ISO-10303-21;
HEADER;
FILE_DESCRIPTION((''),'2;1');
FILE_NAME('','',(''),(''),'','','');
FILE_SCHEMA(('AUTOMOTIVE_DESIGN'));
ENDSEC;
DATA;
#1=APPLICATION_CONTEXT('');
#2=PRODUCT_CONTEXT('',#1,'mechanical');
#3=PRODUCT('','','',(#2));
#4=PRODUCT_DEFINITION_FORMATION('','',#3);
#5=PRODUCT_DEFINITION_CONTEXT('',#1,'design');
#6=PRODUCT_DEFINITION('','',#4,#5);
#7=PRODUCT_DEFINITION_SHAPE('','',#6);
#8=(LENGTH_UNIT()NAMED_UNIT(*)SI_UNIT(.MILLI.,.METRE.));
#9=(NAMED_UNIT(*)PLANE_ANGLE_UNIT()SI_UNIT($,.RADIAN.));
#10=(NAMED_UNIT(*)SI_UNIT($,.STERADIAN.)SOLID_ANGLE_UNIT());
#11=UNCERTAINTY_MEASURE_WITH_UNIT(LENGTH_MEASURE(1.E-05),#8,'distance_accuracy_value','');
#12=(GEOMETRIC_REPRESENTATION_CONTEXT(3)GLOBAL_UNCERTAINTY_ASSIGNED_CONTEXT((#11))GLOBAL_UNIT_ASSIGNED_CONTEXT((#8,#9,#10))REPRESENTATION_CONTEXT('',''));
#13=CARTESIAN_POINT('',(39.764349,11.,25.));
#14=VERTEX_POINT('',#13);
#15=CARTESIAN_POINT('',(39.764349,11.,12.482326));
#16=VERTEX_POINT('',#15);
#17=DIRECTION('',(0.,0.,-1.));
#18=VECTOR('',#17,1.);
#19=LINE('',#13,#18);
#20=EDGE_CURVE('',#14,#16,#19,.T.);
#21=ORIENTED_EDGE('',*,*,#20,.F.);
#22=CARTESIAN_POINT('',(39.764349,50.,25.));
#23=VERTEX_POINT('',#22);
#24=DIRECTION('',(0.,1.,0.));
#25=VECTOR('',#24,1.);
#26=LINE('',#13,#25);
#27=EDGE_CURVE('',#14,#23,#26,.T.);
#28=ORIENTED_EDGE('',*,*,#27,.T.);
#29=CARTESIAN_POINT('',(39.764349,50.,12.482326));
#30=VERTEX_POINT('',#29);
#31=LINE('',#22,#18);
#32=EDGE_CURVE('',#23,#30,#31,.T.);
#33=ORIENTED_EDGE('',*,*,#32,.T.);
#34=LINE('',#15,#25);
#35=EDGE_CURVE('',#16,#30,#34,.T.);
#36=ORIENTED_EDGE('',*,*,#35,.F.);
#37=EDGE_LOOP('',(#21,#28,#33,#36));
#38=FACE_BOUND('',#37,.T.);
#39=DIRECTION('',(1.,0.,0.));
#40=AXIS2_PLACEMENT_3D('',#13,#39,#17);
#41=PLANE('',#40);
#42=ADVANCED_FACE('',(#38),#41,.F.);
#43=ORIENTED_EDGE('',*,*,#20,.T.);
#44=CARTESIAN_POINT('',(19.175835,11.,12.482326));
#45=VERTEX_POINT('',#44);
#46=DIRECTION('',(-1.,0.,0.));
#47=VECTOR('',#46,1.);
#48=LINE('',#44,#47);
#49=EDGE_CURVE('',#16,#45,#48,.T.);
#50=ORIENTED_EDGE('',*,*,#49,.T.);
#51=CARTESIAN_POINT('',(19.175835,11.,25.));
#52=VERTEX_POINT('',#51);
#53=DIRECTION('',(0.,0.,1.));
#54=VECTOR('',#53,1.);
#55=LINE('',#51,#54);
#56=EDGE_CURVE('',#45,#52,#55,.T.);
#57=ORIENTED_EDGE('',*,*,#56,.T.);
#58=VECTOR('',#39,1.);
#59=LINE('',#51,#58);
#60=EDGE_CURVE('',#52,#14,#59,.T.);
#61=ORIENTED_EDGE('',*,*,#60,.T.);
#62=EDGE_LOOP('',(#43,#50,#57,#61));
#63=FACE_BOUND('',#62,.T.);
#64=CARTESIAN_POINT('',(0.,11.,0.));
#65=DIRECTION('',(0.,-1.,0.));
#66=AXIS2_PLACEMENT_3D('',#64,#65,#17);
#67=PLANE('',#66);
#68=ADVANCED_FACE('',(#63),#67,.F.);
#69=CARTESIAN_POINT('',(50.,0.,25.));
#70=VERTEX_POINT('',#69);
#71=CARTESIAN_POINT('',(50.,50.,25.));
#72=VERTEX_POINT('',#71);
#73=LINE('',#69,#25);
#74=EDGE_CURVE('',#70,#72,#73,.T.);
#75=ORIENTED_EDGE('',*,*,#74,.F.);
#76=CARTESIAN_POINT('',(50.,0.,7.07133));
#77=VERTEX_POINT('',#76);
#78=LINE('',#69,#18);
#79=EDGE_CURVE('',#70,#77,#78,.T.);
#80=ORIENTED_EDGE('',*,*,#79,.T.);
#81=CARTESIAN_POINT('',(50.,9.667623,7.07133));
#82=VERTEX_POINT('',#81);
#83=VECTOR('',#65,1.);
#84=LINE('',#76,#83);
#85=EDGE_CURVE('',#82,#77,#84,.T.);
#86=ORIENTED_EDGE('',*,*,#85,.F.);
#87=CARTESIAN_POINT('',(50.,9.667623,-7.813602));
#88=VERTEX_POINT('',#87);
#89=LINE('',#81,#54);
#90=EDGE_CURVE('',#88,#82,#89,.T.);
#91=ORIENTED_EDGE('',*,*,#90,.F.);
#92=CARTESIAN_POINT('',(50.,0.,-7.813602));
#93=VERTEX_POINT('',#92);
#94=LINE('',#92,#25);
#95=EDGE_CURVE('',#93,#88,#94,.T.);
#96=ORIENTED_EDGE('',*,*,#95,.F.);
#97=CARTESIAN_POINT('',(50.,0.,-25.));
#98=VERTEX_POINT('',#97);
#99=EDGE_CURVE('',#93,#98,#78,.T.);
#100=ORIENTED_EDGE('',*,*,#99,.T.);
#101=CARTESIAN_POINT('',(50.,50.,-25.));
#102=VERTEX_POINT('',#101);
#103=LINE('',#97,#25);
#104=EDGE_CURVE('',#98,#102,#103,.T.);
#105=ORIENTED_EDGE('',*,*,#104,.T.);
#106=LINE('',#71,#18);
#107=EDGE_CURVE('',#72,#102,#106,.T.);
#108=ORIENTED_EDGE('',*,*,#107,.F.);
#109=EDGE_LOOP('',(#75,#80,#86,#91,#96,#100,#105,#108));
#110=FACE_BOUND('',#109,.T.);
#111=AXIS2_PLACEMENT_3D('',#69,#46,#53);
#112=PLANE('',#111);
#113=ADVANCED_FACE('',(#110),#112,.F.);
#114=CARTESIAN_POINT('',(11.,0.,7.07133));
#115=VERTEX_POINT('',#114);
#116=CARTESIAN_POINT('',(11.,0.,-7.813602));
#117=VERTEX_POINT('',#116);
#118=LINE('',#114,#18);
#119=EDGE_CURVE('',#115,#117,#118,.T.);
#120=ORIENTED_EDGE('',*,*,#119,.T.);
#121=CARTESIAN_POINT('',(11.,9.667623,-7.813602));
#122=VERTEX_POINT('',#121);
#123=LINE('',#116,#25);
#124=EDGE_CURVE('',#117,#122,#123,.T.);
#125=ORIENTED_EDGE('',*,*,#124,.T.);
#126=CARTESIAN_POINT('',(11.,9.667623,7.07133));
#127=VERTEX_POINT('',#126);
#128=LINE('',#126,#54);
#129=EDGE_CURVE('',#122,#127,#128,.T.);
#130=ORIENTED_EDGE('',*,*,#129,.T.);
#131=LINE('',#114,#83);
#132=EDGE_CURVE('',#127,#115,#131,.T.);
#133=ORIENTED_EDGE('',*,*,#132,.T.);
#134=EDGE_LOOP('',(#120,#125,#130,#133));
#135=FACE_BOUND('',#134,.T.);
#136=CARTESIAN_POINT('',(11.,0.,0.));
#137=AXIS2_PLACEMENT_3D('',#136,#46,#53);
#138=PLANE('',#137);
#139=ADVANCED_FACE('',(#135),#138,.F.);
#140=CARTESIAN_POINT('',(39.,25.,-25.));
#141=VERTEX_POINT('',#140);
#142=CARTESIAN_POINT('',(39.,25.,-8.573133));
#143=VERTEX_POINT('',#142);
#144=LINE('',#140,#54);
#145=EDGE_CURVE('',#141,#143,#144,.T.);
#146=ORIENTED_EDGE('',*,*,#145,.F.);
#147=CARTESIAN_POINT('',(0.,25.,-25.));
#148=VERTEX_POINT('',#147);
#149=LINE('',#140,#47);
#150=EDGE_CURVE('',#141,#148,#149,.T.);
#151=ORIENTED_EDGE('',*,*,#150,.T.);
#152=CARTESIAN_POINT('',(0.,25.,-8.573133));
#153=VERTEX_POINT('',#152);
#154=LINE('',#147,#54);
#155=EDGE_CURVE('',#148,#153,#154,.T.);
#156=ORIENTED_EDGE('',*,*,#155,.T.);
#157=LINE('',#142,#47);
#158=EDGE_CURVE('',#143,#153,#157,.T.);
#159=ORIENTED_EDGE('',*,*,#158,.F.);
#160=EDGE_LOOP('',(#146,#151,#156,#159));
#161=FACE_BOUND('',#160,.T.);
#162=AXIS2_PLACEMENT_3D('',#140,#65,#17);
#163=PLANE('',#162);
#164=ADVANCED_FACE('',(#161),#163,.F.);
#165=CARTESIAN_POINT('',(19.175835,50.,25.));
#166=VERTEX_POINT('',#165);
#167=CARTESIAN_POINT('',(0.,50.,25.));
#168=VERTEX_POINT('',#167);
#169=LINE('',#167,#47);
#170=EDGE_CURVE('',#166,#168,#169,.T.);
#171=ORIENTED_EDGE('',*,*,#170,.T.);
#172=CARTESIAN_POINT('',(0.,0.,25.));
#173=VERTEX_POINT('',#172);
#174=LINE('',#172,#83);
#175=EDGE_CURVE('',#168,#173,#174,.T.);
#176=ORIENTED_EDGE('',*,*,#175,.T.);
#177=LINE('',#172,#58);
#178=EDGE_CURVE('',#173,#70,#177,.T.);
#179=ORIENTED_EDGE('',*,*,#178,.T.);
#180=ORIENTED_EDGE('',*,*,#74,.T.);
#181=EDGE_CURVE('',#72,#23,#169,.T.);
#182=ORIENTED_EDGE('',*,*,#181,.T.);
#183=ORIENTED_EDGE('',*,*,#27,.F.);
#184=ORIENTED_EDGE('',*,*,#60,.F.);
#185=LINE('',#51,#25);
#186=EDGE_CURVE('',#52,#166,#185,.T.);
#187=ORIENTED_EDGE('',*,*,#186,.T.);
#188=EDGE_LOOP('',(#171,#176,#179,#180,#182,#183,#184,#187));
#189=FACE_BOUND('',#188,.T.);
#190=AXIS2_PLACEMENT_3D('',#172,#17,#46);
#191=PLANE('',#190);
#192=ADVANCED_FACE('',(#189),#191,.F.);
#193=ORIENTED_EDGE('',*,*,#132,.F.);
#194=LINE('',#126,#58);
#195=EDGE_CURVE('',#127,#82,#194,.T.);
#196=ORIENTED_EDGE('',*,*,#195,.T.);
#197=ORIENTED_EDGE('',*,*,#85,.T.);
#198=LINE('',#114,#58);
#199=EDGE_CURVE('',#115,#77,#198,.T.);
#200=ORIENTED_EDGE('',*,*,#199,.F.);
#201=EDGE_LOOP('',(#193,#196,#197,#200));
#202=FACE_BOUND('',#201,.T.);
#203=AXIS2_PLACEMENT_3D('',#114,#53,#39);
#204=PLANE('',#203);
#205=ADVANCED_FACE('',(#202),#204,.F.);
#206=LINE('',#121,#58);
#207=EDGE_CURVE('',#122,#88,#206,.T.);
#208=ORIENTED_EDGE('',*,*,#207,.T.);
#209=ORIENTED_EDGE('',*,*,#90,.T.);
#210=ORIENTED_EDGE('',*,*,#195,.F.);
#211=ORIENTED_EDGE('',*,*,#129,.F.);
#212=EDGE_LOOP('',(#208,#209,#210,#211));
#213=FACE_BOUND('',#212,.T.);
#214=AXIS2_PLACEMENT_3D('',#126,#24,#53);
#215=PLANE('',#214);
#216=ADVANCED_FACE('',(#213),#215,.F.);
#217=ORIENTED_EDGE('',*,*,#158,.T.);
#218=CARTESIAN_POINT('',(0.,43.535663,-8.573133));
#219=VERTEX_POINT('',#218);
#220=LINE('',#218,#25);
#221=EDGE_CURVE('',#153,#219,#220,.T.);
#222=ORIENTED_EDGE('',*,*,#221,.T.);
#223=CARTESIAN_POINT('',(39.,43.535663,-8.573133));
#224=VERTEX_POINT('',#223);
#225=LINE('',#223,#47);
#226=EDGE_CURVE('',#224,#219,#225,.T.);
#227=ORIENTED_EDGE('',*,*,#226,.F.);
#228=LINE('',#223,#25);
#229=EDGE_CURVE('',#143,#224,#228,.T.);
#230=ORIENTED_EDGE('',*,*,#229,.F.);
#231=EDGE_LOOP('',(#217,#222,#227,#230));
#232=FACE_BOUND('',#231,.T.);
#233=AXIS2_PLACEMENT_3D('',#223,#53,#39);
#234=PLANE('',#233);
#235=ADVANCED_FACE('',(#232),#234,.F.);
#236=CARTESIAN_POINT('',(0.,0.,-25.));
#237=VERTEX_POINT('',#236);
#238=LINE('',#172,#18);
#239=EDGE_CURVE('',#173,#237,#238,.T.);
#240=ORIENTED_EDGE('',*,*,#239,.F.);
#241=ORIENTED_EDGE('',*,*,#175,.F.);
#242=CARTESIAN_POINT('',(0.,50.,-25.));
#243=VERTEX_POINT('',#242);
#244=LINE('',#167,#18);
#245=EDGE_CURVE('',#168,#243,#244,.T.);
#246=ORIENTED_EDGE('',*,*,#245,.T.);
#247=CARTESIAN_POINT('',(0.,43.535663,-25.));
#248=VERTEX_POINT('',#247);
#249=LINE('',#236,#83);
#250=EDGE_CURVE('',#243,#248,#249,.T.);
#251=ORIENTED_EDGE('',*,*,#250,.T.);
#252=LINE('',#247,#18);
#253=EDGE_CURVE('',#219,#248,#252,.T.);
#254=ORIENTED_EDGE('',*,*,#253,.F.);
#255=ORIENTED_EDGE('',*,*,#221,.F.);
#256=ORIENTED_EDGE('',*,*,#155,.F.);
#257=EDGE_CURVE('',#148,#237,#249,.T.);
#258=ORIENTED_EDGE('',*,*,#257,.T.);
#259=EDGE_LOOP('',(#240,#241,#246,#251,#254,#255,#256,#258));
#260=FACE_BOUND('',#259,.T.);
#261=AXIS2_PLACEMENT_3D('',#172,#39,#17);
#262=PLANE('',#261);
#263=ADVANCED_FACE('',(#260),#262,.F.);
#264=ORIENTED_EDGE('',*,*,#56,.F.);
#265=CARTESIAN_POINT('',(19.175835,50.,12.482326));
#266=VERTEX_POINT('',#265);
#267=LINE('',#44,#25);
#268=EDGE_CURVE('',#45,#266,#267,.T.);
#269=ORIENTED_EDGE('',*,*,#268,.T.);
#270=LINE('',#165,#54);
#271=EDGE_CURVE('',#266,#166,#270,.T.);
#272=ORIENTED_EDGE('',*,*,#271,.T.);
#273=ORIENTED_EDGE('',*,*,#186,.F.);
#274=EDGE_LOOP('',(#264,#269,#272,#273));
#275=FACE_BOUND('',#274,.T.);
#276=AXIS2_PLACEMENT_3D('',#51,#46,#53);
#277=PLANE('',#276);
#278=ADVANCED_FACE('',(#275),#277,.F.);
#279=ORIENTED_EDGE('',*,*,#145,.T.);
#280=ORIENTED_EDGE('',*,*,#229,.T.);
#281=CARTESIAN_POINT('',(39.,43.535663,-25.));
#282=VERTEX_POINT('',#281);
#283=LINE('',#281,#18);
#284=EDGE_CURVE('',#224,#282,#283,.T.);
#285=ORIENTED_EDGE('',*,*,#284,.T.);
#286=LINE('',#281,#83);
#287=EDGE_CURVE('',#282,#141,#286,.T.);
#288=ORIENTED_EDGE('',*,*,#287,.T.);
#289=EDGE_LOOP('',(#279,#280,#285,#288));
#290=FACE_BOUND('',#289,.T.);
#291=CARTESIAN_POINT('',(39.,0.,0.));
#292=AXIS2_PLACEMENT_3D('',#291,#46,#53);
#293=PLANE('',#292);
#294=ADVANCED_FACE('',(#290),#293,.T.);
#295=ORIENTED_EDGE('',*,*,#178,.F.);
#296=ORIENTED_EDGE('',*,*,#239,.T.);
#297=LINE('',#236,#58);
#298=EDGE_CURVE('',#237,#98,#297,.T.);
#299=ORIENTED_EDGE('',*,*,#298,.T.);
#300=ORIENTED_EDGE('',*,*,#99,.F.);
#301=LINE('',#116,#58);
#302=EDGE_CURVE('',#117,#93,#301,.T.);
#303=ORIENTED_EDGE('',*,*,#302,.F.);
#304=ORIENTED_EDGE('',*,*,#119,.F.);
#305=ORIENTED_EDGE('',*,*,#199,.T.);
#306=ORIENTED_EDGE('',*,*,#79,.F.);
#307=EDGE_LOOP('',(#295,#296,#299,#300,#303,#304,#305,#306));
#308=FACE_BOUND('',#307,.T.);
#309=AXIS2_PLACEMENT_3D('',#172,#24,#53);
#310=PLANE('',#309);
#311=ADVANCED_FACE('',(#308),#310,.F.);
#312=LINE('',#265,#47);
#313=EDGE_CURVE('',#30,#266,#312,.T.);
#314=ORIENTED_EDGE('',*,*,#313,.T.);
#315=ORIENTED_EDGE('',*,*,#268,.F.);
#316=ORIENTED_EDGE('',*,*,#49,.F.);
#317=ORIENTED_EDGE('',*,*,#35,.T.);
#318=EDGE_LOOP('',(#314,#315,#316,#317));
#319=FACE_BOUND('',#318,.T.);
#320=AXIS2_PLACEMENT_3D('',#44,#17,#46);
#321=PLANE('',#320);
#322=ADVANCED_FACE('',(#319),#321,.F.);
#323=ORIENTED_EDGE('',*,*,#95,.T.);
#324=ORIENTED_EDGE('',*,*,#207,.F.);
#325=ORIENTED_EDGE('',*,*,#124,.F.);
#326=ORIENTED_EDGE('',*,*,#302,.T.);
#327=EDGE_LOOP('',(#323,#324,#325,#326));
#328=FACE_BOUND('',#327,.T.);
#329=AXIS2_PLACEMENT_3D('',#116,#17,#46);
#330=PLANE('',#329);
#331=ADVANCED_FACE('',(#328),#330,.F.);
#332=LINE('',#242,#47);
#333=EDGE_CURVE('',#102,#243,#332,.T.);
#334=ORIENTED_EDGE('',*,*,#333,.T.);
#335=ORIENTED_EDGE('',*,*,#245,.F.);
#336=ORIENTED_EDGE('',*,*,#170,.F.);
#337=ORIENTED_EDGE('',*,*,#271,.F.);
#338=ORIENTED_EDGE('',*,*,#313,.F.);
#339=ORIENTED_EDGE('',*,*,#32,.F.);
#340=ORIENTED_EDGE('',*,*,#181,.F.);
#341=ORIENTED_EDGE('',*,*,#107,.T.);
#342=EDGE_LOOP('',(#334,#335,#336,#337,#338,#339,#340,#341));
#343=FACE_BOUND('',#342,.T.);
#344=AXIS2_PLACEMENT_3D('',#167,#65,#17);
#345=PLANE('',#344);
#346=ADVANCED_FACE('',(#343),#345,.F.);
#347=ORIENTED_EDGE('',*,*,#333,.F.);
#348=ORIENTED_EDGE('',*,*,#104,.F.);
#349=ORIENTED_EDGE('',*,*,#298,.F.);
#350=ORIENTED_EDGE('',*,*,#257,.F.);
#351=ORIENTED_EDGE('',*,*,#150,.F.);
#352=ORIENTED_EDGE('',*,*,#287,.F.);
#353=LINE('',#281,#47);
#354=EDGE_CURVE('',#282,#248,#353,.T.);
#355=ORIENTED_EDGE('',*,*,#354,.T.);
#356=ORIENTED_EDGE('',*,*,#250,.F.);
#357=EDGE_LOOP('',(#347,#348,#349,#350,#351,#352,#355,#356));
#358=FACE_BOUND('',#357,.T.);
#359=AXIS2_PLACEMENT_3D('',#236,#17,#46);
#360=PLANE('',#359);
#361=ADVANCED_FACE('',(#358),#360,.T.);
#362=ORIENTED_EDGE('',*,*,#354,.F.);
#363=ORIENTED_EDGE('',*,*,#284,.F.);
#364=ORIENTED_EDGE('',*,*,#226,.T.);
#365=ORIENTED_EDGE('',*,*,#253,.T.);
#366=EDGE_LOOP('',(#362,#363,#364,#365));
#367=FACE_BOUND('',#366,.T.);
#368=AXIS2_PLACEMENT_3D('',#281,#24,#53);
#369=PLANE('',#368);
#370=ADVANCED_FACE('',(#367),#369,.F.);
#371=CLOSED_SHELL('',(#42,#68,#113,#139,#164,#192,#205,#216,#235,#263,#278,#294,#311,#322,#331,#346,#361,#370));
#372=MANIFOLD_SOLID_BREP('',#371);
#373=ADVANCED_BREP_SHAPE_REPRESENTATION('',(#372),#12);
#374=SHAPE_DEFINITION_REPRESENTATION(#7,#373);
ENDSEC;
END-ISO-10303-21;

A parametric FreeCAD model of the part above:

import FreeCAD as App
import Part
import Sketcher

V = App.Vector

doc = App.newDocument("Part")
body = doc.addObject("PartDesign::Body", "Body")

# Sketch on XY plane
sketch1 = doc.addObject("Sketcher::SketchObject", "Sketch")
body.addObject(sketch1)
sketch1.AttachmentSupport = (doc.XY_Plane, [""])
sketch1.MapMode = "FlatFace"
sketch1.addGeometry([
    Part.LineSegment(V(0, 50, 0), V(0, 0, 0)),
    Part.LineSegment(V(0, 0, 0), V(50, 0, 0)),
    Part.LineSegment(V(50, 0, 0), V(50, 50, 0)),
    Part.LineSegment(V(50, 50, 0), V(0, 50, 0)),
], False)
sketch1.addConstraint([
    Sketcher.Constraint("Coincident", 0, 2, 1, 1),
    Sketcher.Constraint("Coincident", 1, 2, 2, 1),
    Sketcher.Constraint("Coincident", 2, 2, 3, 1),
    Sketcher.Constraint("Coincident", 3, 2, 0, 1),
    Sketcher.Constraint("Vertical", 0),
    Sketcher.Constraint("Horizontal", 1),
    Sketcher.Constraint("Vertical", 2),
    Sketcher.Constraint("Horizontal", 3),
    Sketcher.Constraint("Coincident", 0, 2, -1, 1),
    Sketcher.Constraint("Equal", 3, 0),
    Sketcher.Constraint("DistanceX", 1, 1, 1, 2, 50.0),
])
pad1 = doc.addObject("PartDesign::Pad", "Pad")
body.addObject(pad1)
pad1.Profile = sketch1
pad1.Length = 50
pad1.Midplane = True

# Sketch on XZ plane
sketch2 = doc.addObject("Sketcher::SketchObject", "Sketch001")
body.addObject(sketch2)
sketch2.AttachmentSupport = (doc.XZ_Plane, [""])
sketch2.MapMode = "FlatFace"
sketch2.AttachmentOffset = App.Placement(V(0, 0, -50), App.Rotation())
sketch2.addGeometry([
    Part.LineSegment(V(19, 12, 0), V(19, 25, 0)),
    Part.LineSegment(V(19, 25, 0), V(40, 25, 0)),
    Part.LineSegment(V(40, 25, 0), V(40, 12, 0)),
    Part.LineSegment(V(40, 12, 0), V(19, 12, 0)),
], False)
sketch2.addConstraint([
    Sketcher.Constraint("Coincident", 0, 2, 1, 1),
    Sketcher.Constraint("Coincident", 1, 2, 2, 1),
    Sketcher.Constraint("Coincident", 2, 2, 3, 1),
    Sketcher.Constraint("Coincident", 3, 2, 0, 1),
    Sketcher.Constraint("Vertical", 0),
    Sketcher.Constraint("Horizontal", 1),
    Sketcher.Constraint("Vertical", 2),
    Sketcher.Constraint("Horizontal", 3),
    Sketcher.Constraint("DistanceY", -1, 1, 0, 2, 25.0),
    Sketcher.Constraint("DistanceX", 1, 1, 1, 2, 20.588514),
    Sketcher.Constraint("DistanceY", 0, 1, 0, 2, 12.517674),
    Sketcher.Constraint("DistanceX", -1, 1, 1, 2, 39.764349),
])
pocket1 = doc.addObject("PartDesign::Pocket", "Pocket")
body.addObject(pocket1)
pocket1.Profile = sketch2
pocket1.Length = 39
pocket1.Reversed = True

# Sketch on YZ plane
sketch3 = doc.addObject("Sketcher::SketchObject", "Sketch002")
body.addObject(sketch3)
sketch3.AttachmentSupport = (doc.YZ_Plane, [""])
sketch3.MapMode = "FlatFace"
sketch3.AttachmentOffset = App.Placement(V(0, 0, 50), App.Rotation())
sketch3.addGeometry([
    Part.LineSegment(V(10, 7, 0), V(0, 7, 0)),
    Part.LineSegment(V(0, 7, 0), V(0, -8, 0)),
    Part.LineSegment(V(0, -8, 0), V(10, -8, 0)),
    Part.LineSegment(V(10, -8, 0), V(10, 7, 0)),
], False)
sketch3.addConstraint([
    Sketcher.Constraint("Coincident", 0, 2, 1, 1),
    Sketcher.Constraint("Coincident", 1, 2, 2, 1),
    Sketcher.Constraint("Coincident", 2, 2, 3, 1),
    Sketcher.Constraint("Coincident", 3, 2, 0, 1),
    Sketcher.Constraint("Horizontal", 0),
    Sketcher.Constraint("Vertical", 1),
    Sketcher.Constraint("Horizontal", 2),
    Sketcher.Constraint("Vertical", 3),
    Sketcher.Constraint("PointOnObject", 0, 2, -2),
    Sketcher.Constraint("DistanceX", 0, 2, 0, 1, 9.667623),
    Sketcher.Constraint("DistanceY", 1, 2, 1, 1, 14.884933),
    Sketcher.Constraint("DistanceY", -1, 1, 0, 2, 7.07133),
])
pocket2 = doc.addObject("PartDesign::Pocket", "Pocket001")
body.addObject(pocket2)
pocket2.Profile = sketch3
pocket2.Length = 39

# Sketch on YZ plane
sketch4 = doc.addObject("Sketcher::SketchObject", "Sketch003")
body.addObject(sketch4)
sketch4.AttachmentSupport = (doc.YZ_Plane, [""])
sketch4.MapMode = "FlatFace"
sketch4.addGeometry([
    Part.LineSegment(V(44, -25, 0), V(25, -25, 0)),
    Part.LineSegment(V(25, -25, 0), V(25, -9, 0)),
    Part.LineSegment(V(25, -9, 0), V(44, -9, 0)),
    Part.LineSegment(V(44, -9, 0), V(44, -25, 0)),
], False)
sketch4.addConstraint([
    Sketcher.Constraint("Coincident", 0, 2, 1, 1),
    Sketcher.Constraint("Coincident", 1, 2, 2, 1),
    Sketcher.Constraint("Coincident", 2, 2, 3, 1),
    Sketcher.Constraint("Coincident", 3, 2, 0, 1),
    Sketcher.Constraint("Horizontal", 0),
    Sketcher.Constraint("Vertical", 1),
    Sketcher.Constraint("Horizontal", 2),
    Sketcher.Constraint("Vertical", 3),
    Sketcher.Constraint("DistanceX", -1, 1, 0, 2, 25.0),
    Sketcher.Constraint("DistanceY", 0, 2, -1, 1, 25.0),
    Sketcher.Constraint("DistanceX", 0, 2, 0, 1, 18.535663),
    Sketcher.Constraint("DistanceY", 1, 1, 1, 2, 16.426867),
])
pocket3 = doc.addObject("PartDesign::Pocket", "Pocket002")
body.addObject(pocket3)
pocket3.Profile = sketch4
pocket3.Length = 39
pocket3.Reversed = True

doc.recompute()
